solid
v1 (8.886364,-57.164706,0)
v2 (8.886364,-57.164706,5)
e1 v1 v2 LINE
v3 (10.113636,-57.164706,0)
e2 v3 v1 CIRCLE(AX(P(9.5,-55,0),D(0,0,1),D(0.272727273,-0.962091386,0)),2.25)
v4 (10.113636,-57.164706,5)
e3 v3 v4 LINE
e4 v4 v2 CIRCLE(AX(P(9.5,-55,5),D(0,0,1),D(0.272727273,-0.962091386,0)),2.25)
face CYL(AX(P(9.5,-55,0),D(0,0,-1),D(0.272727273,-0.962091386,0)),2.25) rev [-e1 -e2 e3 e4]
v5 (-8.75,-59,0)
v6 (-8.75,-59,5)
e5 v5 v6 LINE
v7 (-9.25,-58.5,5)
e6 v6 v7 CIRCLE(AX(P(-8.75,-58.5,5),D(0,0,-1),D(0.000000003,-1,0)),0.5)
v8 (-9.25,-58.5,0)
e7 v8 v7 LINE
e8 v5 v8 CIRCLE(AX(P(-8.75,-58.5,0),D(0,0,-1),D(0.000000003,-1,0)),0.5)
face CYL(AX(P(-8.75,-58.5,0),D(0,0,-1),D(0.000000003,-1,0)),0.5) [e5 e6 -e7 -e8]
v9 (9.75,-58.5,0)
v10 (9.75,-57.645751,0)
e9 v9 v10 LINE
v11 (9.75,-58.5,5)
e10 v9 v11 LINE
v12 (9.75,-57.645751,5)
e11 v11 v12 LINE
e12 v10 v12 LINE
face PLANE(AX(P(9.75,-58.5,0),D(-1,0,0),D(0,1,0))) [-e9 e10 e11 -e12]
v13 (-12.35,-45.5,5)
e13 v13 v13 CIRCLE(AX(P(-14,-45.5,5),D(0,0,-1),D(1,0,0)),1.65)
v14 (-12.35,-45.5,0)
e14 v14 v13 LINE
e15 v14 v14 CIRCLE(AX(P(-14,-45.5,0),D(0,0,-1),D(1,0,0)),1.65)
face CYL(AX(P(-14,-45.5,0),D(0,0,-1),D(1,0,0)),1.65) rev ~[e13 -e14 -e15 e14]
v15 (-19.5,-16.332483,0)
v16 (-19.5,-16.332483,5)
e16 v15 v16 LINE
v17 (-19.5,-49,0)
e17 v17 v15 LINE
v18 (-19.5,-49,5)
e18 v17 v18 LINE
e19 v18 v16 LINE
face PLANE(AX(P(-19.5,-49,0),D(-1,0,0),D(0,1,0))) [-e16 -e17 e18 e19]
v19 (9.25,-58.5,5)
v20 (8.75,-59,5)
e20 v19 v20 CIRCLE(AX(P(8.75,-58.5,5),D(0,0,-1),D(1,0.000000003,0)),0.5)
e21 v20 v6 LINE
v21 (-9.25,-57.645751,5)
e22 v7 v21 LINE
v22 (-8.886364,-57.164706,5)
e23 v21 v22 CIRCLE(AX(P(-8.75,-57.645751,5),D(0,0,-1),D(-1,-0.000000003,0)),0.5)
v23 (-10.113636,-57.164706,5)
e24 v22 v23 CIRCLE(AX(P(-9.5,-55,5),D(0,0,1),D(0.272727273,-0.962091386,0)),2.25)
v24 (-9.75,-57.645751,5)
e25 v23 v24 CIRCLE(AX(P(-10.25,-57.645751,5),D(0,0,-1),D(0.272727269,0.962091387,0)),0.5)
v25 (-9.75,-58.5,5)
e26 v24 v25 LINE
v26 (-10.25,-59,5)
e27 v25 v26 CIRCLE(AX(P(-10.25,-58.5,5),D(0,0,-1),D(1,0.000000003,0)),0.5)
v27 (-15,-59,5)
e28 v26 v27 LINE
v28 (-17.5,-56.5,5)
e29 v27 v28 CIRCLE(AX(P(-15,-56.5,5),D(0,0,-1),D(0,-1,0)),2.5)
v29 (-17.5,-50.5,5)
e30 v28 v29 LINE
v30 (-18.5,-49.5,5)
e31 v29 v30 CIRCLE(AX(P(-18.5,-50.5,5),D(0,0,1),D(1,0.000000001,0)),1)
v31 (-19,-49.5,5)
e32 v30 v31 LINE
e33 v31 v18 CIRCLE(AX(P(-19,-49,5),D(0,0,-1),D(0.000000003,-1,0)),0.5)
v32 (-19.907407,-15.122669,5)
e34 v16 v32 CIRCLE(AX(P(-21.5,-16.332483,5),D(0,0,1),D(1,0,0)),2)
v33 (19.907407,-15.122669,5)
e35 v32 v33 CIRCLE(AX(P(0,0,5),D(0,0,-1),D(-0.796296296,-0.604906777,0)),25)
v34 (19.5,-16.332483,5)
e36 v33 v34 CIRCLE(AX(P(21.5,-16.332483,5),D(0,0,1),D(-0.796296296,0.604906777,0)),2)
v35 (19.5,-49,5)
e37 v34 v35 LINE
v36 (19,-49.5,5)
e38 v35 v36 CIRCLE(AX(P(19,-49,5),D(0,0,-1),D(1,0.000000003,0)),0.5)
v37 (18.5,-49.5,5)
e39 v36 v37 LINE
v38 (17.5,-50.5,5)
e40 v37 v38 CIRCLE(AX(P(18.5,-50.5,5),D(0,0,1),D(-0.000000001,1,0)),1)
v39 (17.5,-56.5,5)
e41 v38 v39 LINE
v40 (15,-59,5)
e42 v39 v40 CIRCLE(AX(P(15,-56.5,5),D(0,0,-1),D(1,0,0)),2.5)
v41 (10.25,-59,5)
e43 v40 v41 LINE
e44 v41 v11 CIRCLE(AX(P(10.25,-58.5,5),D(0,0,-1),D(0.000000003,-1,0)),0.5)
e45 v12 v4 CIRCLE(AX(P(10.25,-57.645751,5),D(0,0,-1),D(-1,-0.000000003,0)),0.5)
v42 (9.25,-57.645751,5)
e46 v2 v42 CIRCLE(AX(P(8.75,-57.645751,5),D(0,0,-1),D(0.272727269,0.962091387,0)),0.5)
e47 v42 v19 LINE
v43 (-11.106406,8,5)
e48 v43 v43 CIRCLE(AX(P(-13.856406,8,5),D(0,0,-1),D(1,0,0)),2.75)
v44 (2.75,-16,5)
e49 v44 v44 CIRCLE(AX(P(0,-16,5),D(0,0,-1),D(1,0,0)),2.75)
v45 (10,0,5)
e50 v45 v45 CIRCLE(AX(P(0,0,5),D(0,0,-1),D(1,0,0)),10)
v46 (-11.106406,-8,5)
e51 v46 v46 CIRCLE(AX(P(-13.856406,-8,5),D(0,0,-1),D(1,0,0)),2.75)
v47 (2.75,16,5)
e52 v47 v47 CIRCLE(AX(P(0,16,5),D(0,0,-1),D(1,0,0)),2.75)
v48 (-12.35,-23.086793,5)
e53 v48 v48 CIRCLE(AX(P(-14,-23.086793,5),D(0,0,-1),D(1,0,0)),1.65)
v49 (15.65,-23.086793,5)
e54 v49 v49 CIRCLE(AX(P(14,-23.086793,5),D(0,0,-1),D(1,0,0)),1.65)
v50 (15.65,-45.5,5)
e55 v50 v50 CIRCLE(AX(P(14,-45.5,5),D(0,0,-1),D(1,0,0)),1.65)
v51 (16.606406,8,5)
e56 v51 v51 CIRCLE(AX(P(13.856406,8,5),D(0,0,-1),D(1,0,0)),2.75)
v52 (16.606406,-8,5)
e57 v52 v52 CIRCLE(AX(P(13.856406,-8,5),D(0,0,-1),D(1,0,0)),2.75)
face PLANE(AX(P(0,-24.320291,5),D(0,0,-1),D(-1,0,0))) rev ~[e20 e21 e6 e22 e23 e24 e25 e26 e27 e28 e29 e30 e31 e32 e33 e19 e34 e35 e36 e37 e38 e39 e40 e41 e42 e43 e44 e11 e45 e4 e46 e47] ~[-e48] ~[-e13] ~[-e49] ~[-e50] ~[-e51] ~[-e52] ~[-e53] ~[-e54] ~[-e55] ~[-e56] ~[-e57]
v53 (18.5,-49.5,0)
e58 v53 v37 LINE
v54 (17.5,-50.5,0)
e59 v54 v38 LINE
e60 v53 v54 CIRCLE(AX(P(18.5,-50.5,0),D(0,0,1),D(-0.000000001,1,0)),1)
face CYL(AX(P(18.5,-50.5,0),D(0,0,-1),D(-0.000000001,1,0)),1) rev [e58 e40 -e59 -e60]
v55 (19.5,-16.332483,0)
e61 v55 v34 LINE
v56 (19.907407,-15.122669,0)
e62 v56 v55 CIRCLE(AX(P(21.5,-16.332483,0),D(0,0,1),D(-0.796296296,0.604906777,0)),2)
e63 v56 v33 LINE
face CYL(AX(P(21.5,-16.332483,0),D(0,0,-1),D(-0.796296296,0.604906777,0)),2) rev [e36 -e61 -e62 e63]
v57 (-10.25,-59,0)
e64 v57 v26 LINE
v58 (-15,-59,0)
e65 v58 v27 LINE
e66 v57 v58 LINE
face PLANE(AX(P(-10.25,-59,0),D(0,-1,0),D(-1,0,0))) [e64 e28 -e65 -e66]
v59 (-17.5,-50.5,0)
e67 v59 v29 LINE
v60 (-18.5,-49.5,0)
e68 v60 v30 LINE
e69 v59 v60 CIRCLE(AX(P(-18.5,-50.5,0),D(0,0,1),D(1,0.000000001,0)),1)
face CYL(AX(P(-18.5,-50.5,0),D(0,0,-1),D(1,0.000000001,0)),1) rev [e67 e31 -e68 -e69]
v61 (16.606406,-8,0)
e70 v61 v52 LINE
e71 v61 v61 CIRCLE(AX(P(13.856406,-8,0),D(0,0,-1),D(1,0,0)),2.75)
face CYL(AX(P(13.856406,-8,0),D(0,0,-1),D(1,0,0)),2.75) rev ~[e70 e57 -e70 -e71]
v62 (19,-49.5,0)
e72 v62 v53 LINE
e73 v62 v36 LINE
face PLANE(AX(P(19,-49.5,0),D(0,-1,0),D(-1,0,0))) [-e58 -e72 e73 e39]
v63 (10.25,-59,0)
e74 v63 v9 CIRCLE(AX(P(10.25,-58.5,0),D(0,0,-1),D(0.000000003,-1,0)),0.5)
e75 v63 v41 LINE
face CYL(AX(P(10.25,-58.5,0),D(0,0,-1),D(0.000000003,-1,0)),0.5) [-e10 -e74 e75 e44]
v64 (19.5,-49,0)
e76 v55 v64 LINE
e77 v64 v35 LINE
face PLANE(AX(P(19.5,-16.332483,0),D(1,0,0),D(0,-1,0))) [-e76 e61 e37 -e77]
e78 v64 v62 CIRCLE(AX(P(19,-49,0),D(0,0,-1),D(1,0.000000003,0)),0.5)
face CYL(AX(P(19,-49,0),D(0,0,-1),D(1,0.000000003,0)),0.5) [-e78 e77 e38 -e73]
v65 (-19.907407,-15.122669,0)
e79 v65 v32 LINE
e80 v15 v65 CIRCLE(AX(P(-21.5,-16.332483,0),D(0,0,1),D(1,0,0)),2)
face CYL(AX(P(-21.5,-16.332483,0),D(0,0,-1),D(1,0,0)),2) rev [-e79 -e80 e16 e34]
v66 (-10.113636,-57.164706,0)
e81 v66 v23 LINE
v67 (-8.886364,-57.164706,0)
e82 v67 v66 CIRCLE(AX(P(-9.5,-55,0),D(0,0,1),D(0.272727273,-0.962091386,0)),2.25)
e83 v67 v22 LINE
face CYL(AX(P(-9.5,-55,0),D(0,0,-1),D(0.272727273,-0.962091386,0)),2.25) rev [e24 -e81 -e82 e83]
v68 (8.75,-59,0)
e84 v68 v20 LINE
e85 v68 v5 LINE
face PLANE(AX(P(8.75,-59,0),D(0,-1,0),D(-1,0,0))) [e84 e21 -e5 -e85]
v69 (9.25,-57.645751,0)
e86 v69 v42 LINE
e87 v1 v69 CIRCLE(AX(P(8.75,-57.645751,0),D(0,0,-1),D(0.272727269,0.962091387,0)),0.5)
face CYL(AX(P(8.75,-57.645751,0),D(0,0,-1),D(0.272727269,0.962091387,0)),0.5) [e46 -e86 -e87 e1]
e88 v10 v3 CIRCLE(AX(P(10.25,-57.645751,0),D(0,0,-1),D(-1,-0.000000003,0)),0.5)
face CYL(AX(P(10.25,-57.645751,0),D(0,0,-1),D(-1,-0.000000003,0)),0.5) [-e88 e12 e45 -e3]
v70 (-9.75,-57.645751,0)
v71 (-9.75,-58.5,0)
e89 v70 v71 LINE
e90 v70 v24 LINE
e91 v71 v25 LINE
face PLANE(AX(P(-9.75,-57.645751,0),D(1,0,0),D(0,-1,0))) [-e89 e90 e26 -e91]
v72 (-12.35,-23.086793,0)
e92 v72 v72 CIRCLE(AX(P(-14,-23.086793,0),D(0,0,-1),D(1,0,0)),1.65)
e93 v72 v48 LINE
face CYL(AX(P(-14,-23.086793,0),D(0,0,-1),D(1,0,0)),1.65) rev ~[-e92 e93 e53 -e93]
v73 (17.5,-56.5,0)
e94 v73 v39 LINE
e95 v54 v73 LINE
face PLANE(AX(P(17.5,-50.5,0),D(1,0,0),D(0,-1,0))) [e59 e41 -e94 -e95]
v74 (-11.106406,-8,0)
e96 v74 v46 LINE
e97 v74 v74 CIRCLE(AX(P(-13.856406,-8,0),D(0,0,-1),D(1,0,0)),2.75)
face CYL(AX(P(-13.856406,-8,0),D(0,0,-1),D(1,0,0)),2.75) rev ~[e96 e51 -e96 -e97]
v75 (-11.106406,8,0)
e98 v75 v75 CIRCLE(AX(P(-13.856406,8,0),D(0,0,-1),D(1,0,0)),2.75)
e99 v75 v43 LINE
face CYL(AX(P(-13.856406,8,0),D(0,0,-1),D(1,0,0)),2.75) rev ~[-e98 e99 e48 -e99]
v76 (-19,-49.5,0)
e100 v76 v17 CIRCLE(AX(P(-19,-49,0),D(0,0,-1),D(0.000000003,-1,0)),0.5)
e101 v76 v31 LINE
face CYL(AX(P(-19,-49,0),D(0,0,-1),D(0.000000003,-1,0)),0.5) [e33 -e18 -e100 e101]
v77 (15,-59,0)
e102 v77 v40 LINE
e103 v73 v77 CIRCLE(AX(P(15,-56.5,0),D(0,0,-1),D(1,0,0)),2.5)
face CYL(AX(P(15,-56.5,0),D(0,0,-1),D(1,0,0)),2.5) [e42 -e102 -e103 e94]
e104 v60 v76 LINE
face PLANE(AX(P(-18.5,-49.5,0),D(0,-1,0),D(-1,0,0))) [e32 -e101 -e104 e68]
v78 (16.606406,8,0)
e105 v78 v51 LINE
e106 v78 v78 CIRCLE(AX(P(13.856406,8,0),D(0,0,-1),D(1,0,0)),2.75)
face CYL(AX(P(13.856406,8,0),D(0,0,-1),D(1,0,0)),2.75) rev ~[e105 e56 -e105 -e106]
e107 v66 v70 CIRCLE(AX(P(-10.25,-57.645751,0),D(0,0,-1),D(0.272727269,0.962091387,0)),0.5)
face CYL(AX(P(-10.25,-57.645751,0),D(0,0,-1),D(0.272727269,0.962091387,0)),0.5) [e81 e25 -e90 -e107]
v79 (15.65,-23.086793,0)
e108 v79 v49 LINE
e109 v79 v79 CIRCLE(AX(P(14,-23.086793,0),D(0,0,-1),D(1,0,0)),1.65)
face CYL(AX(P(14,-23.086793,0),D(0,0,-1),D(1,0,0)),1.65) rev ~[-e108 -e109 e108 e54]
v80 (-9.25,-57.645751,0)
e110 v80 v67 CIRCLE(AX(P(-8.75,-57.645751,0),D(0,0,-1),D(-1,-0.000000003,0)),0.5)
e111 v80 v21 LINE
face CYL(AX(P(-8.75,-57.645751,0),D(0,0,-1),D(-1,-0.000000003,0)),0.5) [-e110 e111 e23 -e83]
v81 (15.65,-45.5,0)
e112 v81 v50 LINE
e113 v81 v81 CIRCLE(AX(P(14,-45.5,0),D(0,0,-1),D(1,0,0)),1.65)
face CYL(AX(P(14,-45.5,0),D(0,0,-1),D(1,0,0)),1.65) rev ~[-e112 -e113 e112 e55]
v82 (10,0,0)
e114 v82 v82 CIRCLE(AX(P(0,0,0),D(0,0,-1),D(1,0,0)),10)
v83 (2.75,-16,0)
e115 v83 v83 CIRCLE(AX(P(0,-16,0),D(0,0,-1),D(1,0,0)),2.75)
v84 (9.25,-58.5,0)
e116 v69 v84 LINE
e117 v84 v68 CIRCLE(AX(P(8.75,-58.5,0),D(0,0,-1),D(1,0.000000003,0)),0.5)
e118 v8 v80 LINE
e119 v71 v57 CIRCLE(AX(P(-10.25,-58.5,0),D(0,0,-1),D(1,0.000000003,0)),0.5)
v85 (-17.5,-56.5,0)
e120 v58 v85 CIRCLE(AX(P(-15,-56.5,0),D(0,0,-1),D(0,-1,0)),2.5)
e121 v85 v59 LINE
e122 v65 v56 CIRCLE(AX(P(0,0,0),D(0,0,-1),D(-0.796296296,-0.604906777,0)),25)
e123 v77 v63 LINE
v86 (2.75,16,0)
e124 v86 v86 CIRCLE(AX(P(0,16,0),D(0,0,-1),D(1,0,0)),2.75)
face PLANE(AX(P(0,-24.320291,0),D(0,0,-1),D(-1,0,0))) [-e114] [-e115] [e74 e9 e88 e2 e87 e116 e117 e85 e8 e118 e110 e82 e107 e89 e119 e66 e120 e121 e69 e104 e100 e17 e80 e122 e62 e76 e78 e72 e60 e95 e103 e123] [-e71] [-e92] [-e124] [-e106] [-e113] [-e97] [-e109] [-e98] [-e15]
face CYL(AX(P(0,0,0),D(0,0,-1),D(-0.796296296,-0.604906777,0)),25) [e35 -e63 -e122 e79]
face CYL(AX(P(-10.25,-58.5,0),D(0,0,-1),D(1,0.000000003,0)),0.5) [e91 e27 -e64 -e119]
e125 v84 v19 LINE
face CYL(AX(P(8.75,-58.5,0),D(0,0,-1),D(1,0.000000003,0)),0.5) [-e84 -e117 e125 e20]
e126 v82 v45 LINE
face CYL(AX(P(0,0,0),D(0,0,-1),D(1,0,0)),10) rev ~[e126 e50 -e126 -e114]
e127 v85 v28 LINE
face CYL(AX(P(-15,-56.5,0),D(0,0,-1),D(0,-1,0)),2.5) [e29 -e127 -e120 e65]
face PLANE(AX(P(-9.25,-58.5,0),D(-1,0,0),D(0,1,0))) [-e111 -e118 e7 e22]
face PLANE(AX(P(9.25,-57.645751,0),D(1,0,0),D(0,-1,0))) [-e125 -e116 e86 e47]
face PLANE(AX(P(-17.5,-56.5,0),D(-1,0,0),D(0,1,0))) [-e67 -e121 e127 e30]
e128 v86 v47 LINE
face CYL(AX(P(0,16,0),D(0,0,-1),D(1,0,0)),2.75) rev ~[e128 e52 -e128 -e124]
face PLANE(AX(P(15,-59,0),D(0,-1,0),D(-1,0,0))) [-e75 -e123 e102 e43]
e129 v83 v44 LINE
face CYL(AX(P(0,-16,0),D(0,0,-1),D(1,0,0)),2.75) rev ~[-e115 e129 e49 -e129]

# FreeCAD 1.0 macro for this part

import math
import FreeCAD as App
import Part
import Sketcher
Q = App.Units.Quantity

doc = App.newDocument("Part")
params = doc.addObject("Spreadsheet::Sheet", "Params")
for row, (alias, value) in enumerate([
    ("sketch1_diameter", "20 mm"),
    ("sketch1_radius", "1 mm"),
    ("sketch1_radius2", "2 mm"),
    ("sketch1_radius3", "25 mm"),
    ("sketch1_diameter2", "3.3 mm"),
    ("pad1_length", "5 mm"),
], start=1):
    params.set(f"A{row}", alias)
    params.set(f"B{row}", "=" + value)
    params.setAlias(f"B{row}", alias)

body = doc.addObject("PartDesign::Body", "Body")

# Sketch on XY plane
sketch1 = body.newObject("Sketcher::SketchObject", "Sketch")
sketch1.AttachmentSupport = (doc.getObject("XY_Plane"), [""])
sketch1.MapMode = "FlatFace"
sketch1.addGeometry([
    Part.LineSegment(App.Vector(15, -59, 0), App.Vector(10.25, -59, 0)),  # 0
    Part.ArcOfCircle(Part.Circle(App.Vector(10.25, -58.5, 0), App.Vector(0, 0, 1), 0.5), math.radians(180), math.radians(270)),  # 1
    Part.LineSegment(App.Vector(9.75, -58.5, 0), App.Vector(9.75, -57.65, 0)),  # 2
    Part.ArcOfCircle(Part.Circle(App.Vector(10.25, -57.65, 0), App.Vector(0, 0, 1), 0.5), math.radians(106), math.radians(180)),  # 3
    Part.ArcOfCircle(Part.Circle(App.Vector(9.5, -55, 0), App.Vector(0, 0, 1), 2.25), math.radians(-74), math.radians(254)),  # 4
    Part.ArcOfCircle(Part.Circle(App.Vector(8.75, -57.65, 0), App.Vector(0, 0, 1), 0.5), math.radians(0), math.radians(74)),  # 5
    Part.LineSegment(App.Vector(9.25, -57.65, 0), App.Vector(9.25, -58.5, 0)),  # 6
    Part.ArcOfCircle(Part.Circle(App.Vector(8.75, -58.5, 0), App.Vector(0, 0, 1), 0.5), math.radians(-90), math.radians(0)),  # 7
    Part.LineSegment(App.Vector(8.75, -59, 0), App.Vector(-8.75, -59, 0)),  # 8
    Part.ArcOfCircle(Part.Circle(App.Vector(-8.75, -58.5, 0), App.Vector(0, 0, 1), 0.5), math.radians(180), math.radians(270)),  # 9
    Part.LineSegment(App.Vector(-9.25, -58.5, 0), App.Vector(-9.25, -57.65, 0)),  # 10
    Part.ArcOfCircle(Part.Circle(App.Vector(-8.75, -57.65, 0), App.Vector(0, 0, 1), 0.5), math.radians(106), math.radians(180)),  # 11
    Part.ArcOfCircle(Part.Circle(App.Vector(-9.5, -55, 0), App.Vector(0, 0, 1), 2.25), math.radians(-74), math.radians(254)),  # 12
    Part.ArcOfCircle(Part.Circle(App.Vector(-10.25, -57.65, 0), App.Vector(0, 0, 1), 0.5), math.radians(0), math.radians(74)),  # 13
    Part.LineSegment(App.Vector(-9.75, -57.65, 0), App.Vector(-9.75, -58.5, 0)),  # 14
    Part.ArcOfCircle(Part.Circle(App.Vector(-10.25, -58.5, 0), App.Vector(0, 0, 1), 0.5), math.radians(-90), math.radians(0)),  # 15
    Part.LineSegment(App.Vector(-10.25, -59, 0), App.Vector(-15, -59, 0)),  # 16
    Part.ArcOfCircle(Part.Circle(App.Vector(-15, -56.5, 0), App.Vector(0, 0, 1), 2.5), math.radians(180), math.radians(270)),  # 17
    Part.LineSegment(App.Vector(-17.5, -56.5, 0), App.Vector(-17.5, -50.5, 0)),  # 18
    Part.ArcOfCircle(Part.Circle(App.Vector(-18.5, -50.5, 0), App.Vector(0, 0, 1), 1), math.radians(0), math.radians(90)),  # 19
    Part.LineSegment(App.Vector(-18.5, -49.5, 0), App.Vector(-19, -49.5, 0)),  # 20
    Part.ArcOfCircle(Part.Circle(App.Vector(-19, -49, 0), App.Vector(0, 0, 1), 0.5), math.radians(180), math.radians(270)),  # 21
    Part.LineSegment(App.Vector(-19.5, -49, 0), App.Vector(-19.5, -16.33, 0)),  # 22
    Part.ArcOfCircle(Part.Circle(App.Vector(-21.5, -16.33, 0), App.Vector(0, 0, 1), 2), math.radians(0), math.radians(37)),  # 23
    Part.ArcOfCircle(Part.Circle(App.Vector(0, 0, 0), App.Vector(0, 0, 1), 25), math.radians(-37), math.radians(217)),  # 24
    Part.ArcOfCircle(Part.Circle(App.Vector(21.5, -16.33, 0), App.Vector(0, 0, 1), 2), math.radians(143), math.radians(180)),  # 25
    Part.LineSegment(App.Vector(19.5, -16.33, 0), App.Vector(19.5, -49, 0)),  # 26
    Part.ArcOfCircle(Part.Circle(App.Vector(19, -49, 0), App.Vector(0, 0, 1), 0.5), math.radians(-90), math.radians(0)),  # 27
    Part.LineSegment(App.Vector(19, -49.5, 0), App.Vector(18.5, -49.5, 0)),  # 28
    Part.ArcOfCircle(Part.Circle(App.Vector(18.5, -50.5, 0), App.Vector(0, 0, 1), 1), math.radians(90), math.radians(180)),  # 29
    Part.LineSegment(App.Vector(17.5, -50.5, 0), App.Vector(17.5, -56.5, 0)),  # 30
    Part.ArcOfCircle(Part.Circle(App.Vector(15, -56.5, 0), App.Vector(0, 0, 1), 2.5), math.radians(-90), math.radians(0)),  # 31
    Part.Circle(App.Vector(14, -45.5, 0), App.Vector(0, 0, 1), 1.65),  # 32
    Part.Circle(App.Vector(14, -23.09, 0), App.Vector(0, 0, 1), 1.65),  # 33
    Part.Circle(App.Vector(-14, -45.5, 0), App.Vector(0, 0, 1), 1.65),  # 34
    Part.Circle(App.Vector(0, -16, 0), App.Vector(0, 0, 1), 2.75),  # 35
    Part.Circle(App.Vector(-14, -23.09, 0), App.Vector(0, 0, 1), 1.65),  # 36
    Part.Circle(App.Vector(13.86, -8, 0), App.Vector(0, 0, 1), 2.75),  # 37
    Part.Circle(App.Vector(13.86, 8, 0), App.Vector(0, 0, 1), 2.75),  # 38
    Part.Circle(App.Vector(0, 0, 0), App.Vector(0, 0, 1), 10),  # 39
    Part.Circle(App.Vector(-13.86, -8, 0), App.Vector(0, 0, 1), 2.75),  # 40
    Part.Circle(App.Vector(0, 16, 0), App.Vector(0, 0, 1), 2.75),  # 41
    Part.Circle(App.Vector(-13.86, 8, 0), App.Vector(0, 0, 1), 2.75),  # 42
], False)
sketch1.addConstraint([
    Sketcher.Constraint("Tangent", 0, 2, 1, 2),
    Sketcher.Constraint("Tangent", 1, 1, 2, 1),
    Sketcher.Constraint("Tangent", 2, 2, 3, 2),
    Sketcher.Constraint("Tangent", 3, 1, 4, 1),
    Sketcher.Constraint("Tangent", 4, 2, 5, 2),
    Sketcher.Constraint("Tangent", 5, 1, 6, 1),
    Sketcher.Constraint("Tangent", 6, 2, 7, 2),
    Sketcher.Constraint("Tangent", 7, 1, 8, 1),
    Sketcher.Constraint("Tangent", 8, 2, 9, 2),
    Sketcher.Constraint("Tangent", 9, 1, 10, 1),
    Sketcher.Constraint("Tangent", 10, 2, 11, 2),
    Sketcher.Constraint("Tangent", 11, 1, 12, 1),
    Sketcher.Constraint("Tangent", 12, 2, 13, 2),
    Sketcher.Constraint("Tangent", 13, 1, 14, 1),
    Sketcher.Constraint("Tangent", 14, 2, 15, 2),
    Sketcher.Constraint("Tangent", 15, 1, 16, 1),
    Sketcher.Constraint("Tangent", 16, 2, 17, 2),
    Sketcher.Constraint("Tangent", 17, 1, 18, 1),
    Sketcher.Constraint("Tangent", 18, 2, 19, 1),
    Sketcher.Constraint("Tangent", 19, 2, 20, 1),
    Sketcher.Constraint("Tangent", 20, 2, 21, 2),
    Sketcher.Constraint("Tangent", 21, 1, 22, 1),
    Sketcher.Constraint("Tangent", 22, 2, 23, 1),
    Sketcher.Constraint("Tangent", 23, 2, 24, 2),
    Sketcher.Constraint("Tangent", 24, 1, 25, 1),
    Sketcher.Constraint("Tangent", 25, 2, 26, 1),
    Sketcher.Constraint("Tangent", 26, 2, 27, 2),
    Sketcher.Constraint("Tangent", 27, 1, 28, 1),
    Sketcher.Constraint("Tangent", 28, 2, 29, 1),
    Sketcher.Constraint("Tangent", 29, 2, 30, 1),
    Sketcher.Constraint("Tangent", 30, 2, 31, 2),
    Sketcher.Constraint("Tangent", 31, 1, 0, 1),
    Sketcher.Constraint("Horizontal", 0),
    Sketcher.Constraint("Vertical", 2),
    Sketcher.Constraint("Vertical", 6),
    Sketcher.Constraint("Horizontal", 8),
    Sketcher.Constraint("Vertical", 10),
    Sketcher.Constraint("Vertical", 14),
    Sketcher.Constraint("Horizontal", 16),
    Sketcher.Constraint("Vertical", 18),
    Sketcher.Constraint("Horizontal", 20),
    Sketcher.Constraint("Vertical", 22),
    Sketcher.Constraint("Vertical", 26),
    Sketcher.Constraint("Horizontal", 28),
    Sketcher.Constraint("Vertical", 30),
    Sketcher.Constraint("Coincident", 24, 3, -1, 1),
    Sketcher.Constraint("Coincident", 39, 3, -1, 1),
    Sketcher.Constraint("Equal", 1, 3),
    Sketcher.Constraint("Equal", 3, 5),
    Sketcher.Constraint("Equal", 5, 7),
    Sketcher.Constraint("Equal", 7, 9),
    Sketcher.Constraint("Equal", 9, 11),
    Sketcher.Constraint("Equal", 4, 12),
    Sketcher.Constraint("Equal", 11, 13),
    Sketcher.Constraint("Equal", 13, 15),
    Sketcher.Constraint("Equal", 15, 21),
    Sketcher.Constraint("Equal", 23, 25),
    Sketcher.Constraint("Equal", 21, 27),
    Sketcher.Constraint("Equal", 19, 29),
    Sketcher.Constraint("Equal", 17, 31),
    Sketcher.Constraint("Equal", 32, 33),
    Sketcher.Constraint("Equal", 33, 34),
    Sketcher.Constraint("Equal", 34, 36),
    Sketcher.Constraint("Equal", 35, 37),
    Sketcher.Constraint("Equal", 37, 38),
    Sketcher.Constraint("Equal", 38, 40),
    Sketcher.Constraint("Equal", 40, 41),
    Sketcher.Constraint("Equal", 41, 42),
    Sketcher.Constraint("Symmetric", 38, 3, 40, 3, -1, 1),
    Sketcher.Constraint("Symmetric", 35, 3, 41, 3, -1, 1),
    Sketcher.Constraint("Symmetric", 37, 3, 42, 3, -1, 1),
    Sketcher.Constraint("Symmetric", 5, 3, 11, 3, -2),
    Sketcher.Constraint("Symmetric", 3, 3, 13, 3, -2),
    Sketcher.Constraint("Symmetric", 21, 3, 27, 3, -2),
    Sketcher.Constraint("Symmetric", 17, 3, 31, 3, -2),
    Sketcher.Constraint("Symmetric", 32, 3, 34, 3, -2),
    Sketcher.Constraint("Symmetric", 33, 3, 36, 3, -2),
    Sketcher.Constraint("Symmetric", 37, 3, 40, 3, -2),
    Sketcher.Constraint("PointOnObject", 35, 3, -2),
    Sketcher.Constraint("Horizontal", 3, 3, 5, 3),
    Sketcher.Constraint("Horizontal", 1, 3, 7, 3),
    Sketcher.Constraint("Vertical", 32, 3, 33, 3),
    Sketcher.Constraint("Diameter", 39, Q("20 mm")),
    Sketcher.Constraint("Radius", 19, Q("1 mm")),
    Sketcher.Constraint("Radius", 23, Q("2 mm")),
    Sketcher.Constraint("Radius", 24, Q("25 mm")),
    Sketcher.Constraint("Diameter", 32, Q("3.3 mm")),
    Sketcher.Constraint("Diameter", 35, Q("5.5 mm")),
    Sketcher.Constraint("Radius", 1, Q("0.5 mm")),
    Sketcher.Constraint("Radius", 17, Q("2.5 mm")),
    Sketcher.Constraint("DistanceY", 18, 1, 18, 2, Q("6 mm")),
    Sketcher.Constraint("Radius", 4, Q("2.25 mm")),
    Sketcher.Constraint("DistanceX", 8, 2, 8, 1, Q("17.5 mm")),
    Sketcher.Constraint("DistanceX", 20, 2, 20, 1, Q("0.5 mm")),
    Sketcher.Constraint("DistanceY", 4, 3, -1, 1, Q("55 mm")),
    Sketcher.Constraint("DistanceX", 17, 3, -1, 1, Q("15 mm")),
    Sketcher.Constraint("DistanceY", 21, 3, -1, 1, Q("49 mm")),
    Sketcher.Constraint("DistanceX", -1, 1, 32, 3, Q("14 mm")),
    Sketcher.Constraint("DistanceY", 35, 3, -1, 1, Q("16 mm")),
    Sketcher.Constraint("DistanceY", 37, 3, -1, 1, Q("8 mm")),
    Sketcher.Constraint("DistanceX", 0, 2, 0, 1, Q("4.75 mm")),
    Sketcher.Constraint("DistanceY", 32, 3, -1, 1, Q("45.5 mm")),
    Sketcher.Constraint("DistanceY", 33, 3, -1, 1, Q("23.086793 mm")),
    Sketcher.Constraint("DistanceX", -1, 1, 37, 3, Q("13.856406 mm")),
])
sketch1.setExpression("Constraints[82]", "Params.sketch1_diameter")
sketch1.setExpression("Constraints[83]", "Params.sketch1_radius")
sketch1.setExpression("Constraints[84]", "Params.sketch1_radius2")
sketch1.setExpression("Constraints[85]", "Params.sketch1_radius3")
sketch1.setExpression("Constraints[86]", "Params.sketch1_diameter2")
pad1 = body.newObject("PartDesign::Pad", "Pad")
pad1.Profile = sketch1
pad1.setExpression("Length", "Params.pad1_length")

doc.recompute()
